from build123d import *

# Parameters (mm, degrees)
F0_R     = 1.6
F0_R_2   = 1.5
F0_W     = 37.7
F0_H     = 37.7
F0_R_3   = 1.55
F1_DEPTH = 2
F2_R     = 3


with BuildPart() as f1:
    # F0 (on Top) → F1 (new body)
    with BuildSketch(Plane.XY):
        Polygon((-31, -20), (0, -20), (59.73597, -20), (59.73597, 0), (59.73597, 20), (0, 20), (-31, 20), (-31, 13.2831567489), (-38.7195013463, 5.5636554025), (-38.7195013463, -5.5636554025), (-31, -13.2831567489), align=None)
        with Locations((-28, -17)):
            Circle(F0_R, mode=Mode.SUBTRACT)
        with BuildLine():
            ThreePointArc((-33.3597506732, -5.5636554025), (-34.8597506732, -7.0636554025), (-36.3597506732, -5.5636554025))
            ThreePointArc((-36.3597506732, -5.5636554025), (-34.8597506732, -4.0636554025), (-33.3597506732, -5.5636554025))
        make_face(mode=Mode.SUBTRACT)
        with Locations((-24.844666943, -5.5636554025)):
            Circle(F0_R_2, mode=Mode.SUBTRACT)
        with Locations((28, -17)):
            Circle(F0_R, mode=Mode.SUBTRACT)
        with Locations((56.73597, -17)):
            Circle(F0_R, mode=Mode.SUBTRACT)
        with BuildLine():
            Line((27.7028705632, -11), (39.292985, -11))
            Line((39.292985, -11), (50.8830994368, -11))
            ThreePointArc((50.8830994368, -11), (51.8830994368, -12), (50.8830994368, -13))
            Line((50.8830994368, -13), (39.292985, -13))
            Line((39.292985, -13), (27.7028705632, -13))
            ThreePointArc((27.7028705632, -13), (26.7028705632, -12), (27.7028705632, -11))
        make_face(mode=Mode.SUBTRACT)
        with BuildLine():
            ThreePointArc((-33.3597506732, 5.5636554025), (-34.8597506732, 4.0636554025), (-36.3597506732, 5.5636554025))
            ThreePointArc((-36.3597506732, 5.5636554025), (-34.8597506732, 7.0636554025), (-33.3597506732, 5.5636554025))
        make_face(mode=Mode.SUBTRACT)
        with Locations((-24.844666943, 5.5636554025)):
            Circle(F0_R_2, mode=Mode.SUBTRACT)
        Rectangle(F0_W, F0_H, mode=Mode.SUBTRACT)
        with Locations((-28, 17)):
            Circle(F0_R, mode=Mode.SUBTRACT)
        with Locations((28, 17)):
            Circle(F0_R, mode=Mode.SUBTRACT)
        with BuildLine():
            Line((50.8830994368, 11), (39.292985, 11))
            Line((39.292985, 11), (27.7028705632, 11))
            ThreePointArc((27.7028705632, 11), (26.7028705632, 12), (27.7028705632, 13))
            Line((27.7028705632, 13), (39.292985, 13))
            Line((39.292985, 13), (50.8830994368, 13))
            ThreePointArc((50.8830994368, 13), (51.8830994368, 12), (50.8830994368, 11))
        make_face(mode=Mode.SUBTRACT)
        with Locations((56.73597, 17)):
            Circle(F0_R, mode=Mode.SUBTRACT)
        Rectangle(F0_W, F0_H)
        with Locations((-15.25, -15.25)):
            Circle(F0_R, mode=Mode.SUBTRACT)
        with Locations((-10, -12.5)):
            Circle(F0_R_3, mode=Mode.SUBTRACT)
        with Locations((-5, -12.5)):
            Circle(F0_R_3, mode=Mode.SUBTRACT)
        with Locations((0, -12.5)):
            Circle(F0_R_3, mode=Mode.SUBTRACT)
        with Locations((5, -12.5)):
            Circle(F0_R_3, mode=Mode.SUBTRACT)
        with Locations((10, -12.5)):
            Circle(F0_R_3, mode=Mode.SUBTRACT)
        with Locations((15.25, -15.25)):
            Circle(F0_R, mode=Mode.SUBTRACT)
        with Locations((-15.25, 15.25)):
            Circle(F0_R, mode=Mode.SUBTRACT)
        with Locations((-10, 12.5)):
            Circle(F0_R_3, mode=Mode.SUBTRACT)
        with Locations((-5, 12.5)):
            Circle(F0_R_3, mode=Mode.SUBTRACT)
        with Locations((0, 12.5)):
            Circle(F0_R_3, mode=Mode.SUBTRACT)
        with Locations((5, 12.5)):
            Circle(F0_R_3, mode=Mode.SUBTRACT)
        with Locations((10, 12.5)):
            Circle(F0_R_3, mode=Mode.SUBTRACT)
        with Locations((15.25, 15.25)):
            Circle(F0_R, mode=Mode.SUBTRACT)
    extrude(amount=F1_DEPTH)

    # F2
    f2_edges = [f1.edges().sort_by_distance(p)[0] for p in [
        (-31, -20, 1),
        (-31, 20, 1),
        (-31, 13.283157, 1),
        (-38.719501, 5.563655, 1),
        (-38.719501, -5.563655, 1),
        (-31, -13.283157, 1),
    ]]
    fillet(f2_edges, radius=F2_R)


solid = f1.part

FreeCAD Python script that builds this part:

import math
import FreeCAD as App
import Part
import Sketcher

V = App.Vector
Q = App.Units.Quantity


def edges_at(feature, points):
    """Names of the edges that pass closest to the given points."""
    edges = feature.Shape.Edges
    near = lambda p: min(range(len(edges)), key=lambda i: edges[i].distToShape(Part.Vertex(*p))[0])
    return sorted({f"Edge{near(p) + 1}" for p in points})

doc = App.newDocument("Part")
body = doc.addObject("PartDesign::Body", "Body")

sketch1 = body.newObject("Sketcher::SketchObject", "Sketch")
sketch1.AttachmentSupport = (doc.getObject("XY_Plane"), [""])
sketch1.MapMode = "FlatFace"
sketch1.addGeometry(Part.LineSegment(V(-31, -20, 0), V(59.7, -20, 0)), False)
sketch1.addGeometry(Part.LineSegment(V(59.7, -20, 0), V(59.7, 20, 0)), False)
sketch1.addGeometry(Part.LineSegment(V(59.7, 20, 0), V(-31, 20, 0)), False)
sketch1.addGeometry(Part.LineSegment(V(-31, 20, 0), V(-31, 13.3, 0)), False)
sketch1.addGeometry(Part.LineSegment(V(-31, 13.3, 0), V(-38.7, 5.6, 0)), False)
sketch1.addGeometry(Part.LineSegment(V(-38.7, 5.6, 0), V(-38.7, -5.6, 0)), False)
sketch1.addGeometry(Part.LineSegment(V(-38.7, -5.6, 0), V(-31, -13.3, 0)), False)
sketch1.addGeometry(Part.LineSegment(V(-31, -13.3, 0), V(-31, -20, 0)), False)
sketch1.addGeometry(Part.Circle(V(-28, -17, 0), V(0, 0, 1), 1.6), False)
sketch1.addGeometry(Part.Circle(V(-15.2, -15.2, 0), V(0, 0, 1), 1.6), False)
sketch1.addGeometry(Part.Circle(V(-10, -12.5, 0), V(0, 0, 1), 1.6), False)
sketch1.addGeometry(Part.Circle(V(-5, -12.5, 0), V(0, 0, 1), 1.6), False)
sketch1.addGeometry(Part.Circle(V(0, -12.5, 0), V(0, 0, 1), 1.6), False)
sketch1.addGeometry(Part.Circle(V(5, -12.5, 0), V(0, 0, 1), 1.6), False)
sketch1.addGeometry(Part.Circle(V(10, -12.5, 0), V(0, 0, 1), 1.6), False)
sketch1.addGeometry(Part.Circle(V(-34.9, -5.6, 0), V(0, 0, 1), 1.5), False)
sketch1.addGeometry(Part.Circle(V(-24.8, -5.6, 0), V(0, 0, 1), 1.5), False)
sketch1.addGeometry(Part.Circle(V(15.2, -15.2, 0), V(0, 0, 1), 1.6), False)
sketch1.addGeometry(Part.Circle(V(28, -17, 0), V(0, 0, 1), 1.6), False)
sketch1.addGeometry(Part.Circle(V(56.7, -17, 0), V(0, 0, 1), 1.6), False)
sketch1.addGeometry(Part.ArcOfCircle(Part.Circle(V(27.7, -12, 0), V(0, 0, 1), 1), math.radians(90), math.radians(270)), False)
sketch1.addGeometry(Part.LineSegment(V(27.7, -11, 0), V(50.9, -11, 0)), False)
sketch1.addGeometry(Part.ArcOfCircle(Part.Circle(V(50.9, -12, 0), V(0, 0, 1), 1), math.radians(-90), math.radians(90)), False)
sketch1.addGeometry(Part.LineSegment(V(50.9, -13, 0), V(27.7, -13, 0)), False)
sketch1.addGeometry(Part.Circle(V(-34.9, 5.6, 0), V(0, 0, 1), 1.5), False)
sketch1.addGeometry(Part.Circle(V(-24.8, 5.6, 0), V(0, 0, 1), 1.5), False)
sketch1.addGeometry(Part.Circle(V(-28, 17, 0), V(0, 0, 1), 1.6), False)
sketch1.addGeometry(Part.Circle(V(-15.2, 15.2, 0), V(0, 0, 1), 1.6), False)
sketch1.addGeometry(Part.Circle(V(-10, 12.5, 0), V(0, 0, 1), 1.6), False)
sketch1.addGeometry(Part.Circle(V(-5, 12.5, 0), V(0, 0, 1), 1.6), False)
sketch1.addGeometry(Part.Circle(V(0, 12.5, 0), V(0, 0, 1), 1.6), False)
sketch1.addGeometry(Part.Circle(V(5, 12.5, 0), V(0, 0, 1), 1.6), False)
sketch1.addGeometry(Part.Circle(V(10, 12.5, 0), V(0, 0, 1), 1.6), False)
sketch1.addGeometry(Part.Circle(V(15.2, 15.2, 0), V(0, 0, 1), 1.6), False)
sketch1.addGeometry(Part.Circle(V(28, 17, 0), V(0, 0, 1), 1.6), False)
sketch1.addGeometry(Part.ArcOfCircle(Part.Circle(V(50.9, 12, 0), V(0, 0, 1), 1), math.radians(-90), math.radians(90)), False)
sketch1.addGeometry(Part.LineSegment(V(50.9, 11, 0), V(27.7, 11, 0)), False)
sketch1.addGeometry(Part.ArcOfCircle(Part.Circle(V(27.7, 12, 0), V(0, 0, 1), 1), math.radians(90), math.radians(270)), False)
sketch1.addGeometry(Part.LineSegment(V(27.7, 13, 0), V(50.9, 13, 0)), False)
sketch1.addGeometry(Part.Circle(V(56.7, 17, 0), V(0, 0, 1), 1.6), False)
sketch1.addConstraint(Sketcher.Constraint("Coincident", 0, 2, 1, 1))
sketch1.addConstraint(Sketcher.Constraint("Coincident", 1, 2, 2, 1))
sketch1.addConstraint(Sketcher.Constraint("Coincident", 2, 2, 3, 1))
sketch1.addConstraint(Sketcher.Constraint("Coincident", 3, 2, 4, 1))
sketch1.addConstraint(Sketcher.Constraint("Coincident", 4, 2, 5, 1))
sketch1.addConstraint(Sketcher.Constraint("Coincident", 5, 2, 6, 1))
sketch1.addConstraint(Sketcher.Constraint("Coincident", 6, 2, 7, 1))
sketch1.addConstraint(Sketcher.Constraint("Coincident", 7, 2, 0, 1))
sketch1.addConstraint(Sketcher.Constraint("Tangent", 20, 1, 21, 1))
sketch1.addConstraint(Sketcher.Constraint("Tangent", 21, 2, 22, 2))
sketch1.addConstraint(Sketcher.Constraint("Tangent", 22, 1, 23, 1))
sketch1.addConstraint(Sketcher.Constraint("Tangent", 23, 2, 20, 2))
sketch1.addConstraint(Sketcher.Constraint("Tangent", 35, 1, 36, 1))
sketch1.addConstraint(Sketcher.Constraint("Tangent", 36, 2, 37, 2))
sketch1.addConstraint(Sketcher.Constraint("Tangent", 37, 1, 38, 1))
sketch1.addConstraint(Sketcher.Constraint("Tangent", 38, 2, 35, 2))
sketch1.addConstraint(Sketcher.Constraint("Horizontal", 0))
sketch1.addConstraint(Sketcher.Constraint("Vertical", 1))
sketch1.addConstraint(Sketcher.Constraint("Horizontal", 2))
sketch1.addConstraint(Sketcher.Constraint("Vertical", 3))
sketch1.addConstraint(Sketcher.Constraint("Vertical", 5))
sketch1.addConstraint(Sketcher.Constraint("Vertical", 7))
sketch1.addConstraint(Sketcher.Constraint("Horizontal", 21))
sketch1.addConstraint(Sketcher.Constraint("Horizontal", 23))
sketch1.addConstraint(Sketcher.Constraint("Horizontal", 36))
sketch1.addConstraint(Sketcher.Constraint("Horizontal", 38))
sketch1.addConstraint(Sketcher.Constraint("Equal", 8, 9))
sketch1.addConstraint(Sketcher.Constraint("Equal", 10, 11))
sketch1.addConstraint(Sketcher.Constraint("Equal", 11, 12))
sketch1.addConstraint(Sketcher.Constraint("Equal", 12, 13))
sketch1.addConstraint(Sketcher.Constraint("Equal", 13, 14))
sketch1.addConstraint(Sketcher.Constraint("Equal", 15, 16))
sketch1.addConstraint(Sketcher.Constraint("Equal", 9, 17))
sketch1.addConstraint(Sketcher.Constraint("Equal", 17, 18))
sketch1.addConstraint(Sketcher.Constraint("Equal", 18, 19))
sketch1.addConstraint(Sketcher.Constraint("Equal", 16, 24))
sketch1.addConstraint(Sketcher.Constraint("Equal", 24, 25))
sketch1.addConstraint(Sketcher.Constraint("Equal", 19, 26))
sketch1.addConstraint(Sketcher.Constraint("Equal", 26, 27))
sketch1.addConstraint(Sketcher.Constraint("Equal", 14, 28))
sketch1.addConstraint(Sketcher.Constraint("Equal", 28, 29))
sketch1.addConstraint(Sketcher.Constraint("Equal", 29, 30))
sketch1.addConstraint(Sketcher.Constraint("Equal", 30, 31))
sketch1.addConstraint(Sketcher.Constraint("Equal", 31, 32))
sketch1.addConstraint(Sketcher.Constraint("Equal", 27, 33))
sketch1.addConstraint(Sketcher.Constraint("Equal", 33, 34))
sketch1.addConstraint(Sketcher.Constraint("Equal", 22, 35))
sketch1.addConstraint(Sketcher.Constraint("Equal", 34, 39))
sketch1.addConstraint(Sketcher.Constraint("Symmetric", 18, 3, 26, 3, -1, 1))
sketch1.addConstraint(Sketcher.Constraint("Symmetric", 17, 3, 27, 3, -1, 1))
sketch1.addConstraint(Sketcher.Constraint("Symmetric", 14, 3, 28, 3, -1, 1))
sketch1.addConstraint(Sketcher.Constraint("Symmetric", 13, 3, 29, 3, -1, 1))
sketch1.addConstraint(Sketcher.Constraint("Symmetric", 12, 3, 30, 3, -1, 1))
sketch1.addConstraint(Sketcher.Constraint("Symmetric", 11, 3, 31, 3, -1, 1))
sketch1.addConstraint(Sketcher.Constraint("Symmetric", 10, 3, 32, 3, -1, 1))
sketch1.addConstraint(Sketcher.Constraint("Symmetric", 9, 3, 33, 3, -1, 1))
sketch1.addConstraint(Sketcher.Constraint("Symmetric", 8, 3, 34, 3, -1, 1))
sketch1.addConstraint(Sketcher.Constraint("Symmetric", 11, 3, 13, 3, -2))
sketch1.addConstraint(Sketcher.Constraint("Symmetric", 10, 3, 14, 3, -2))
sketch1.addConstraint(Sketcher.Constraint("Symmetric", 9, 3, 17, 3, -2))
sketch1.addConstraint(Sketcher.Constraint("Symmetric", 8, 3, 18, 3, -2))
sketch1.addConstraint(Sketcher.Constraint("Symmetric", 15, 3, 24, 3, -1))
sketch1.addConstraint(Sketcher.Constraint("Symmetric", 16, 3, 25, 3, -1))
sketch1.addConstraint(Sketcher.Constraint("Symmetric", 22, 3, 35, 3, -1))
sketch1.addConstraint(Sketcher.Constraint("Symmetric", 19, 3, 39, 3, -1))
sketch1.addConstraint(Sketcher.Constraint("Symmetric", 3, 2, 6, 2, -1))
sketch1.addConstraint(Sketcher.Constraint("PointOnObject", 12, 3, -2))
sketch1.addConstraint(Sketcher.Constraint("Perpendicular", 4, 6))
sketch1.addConstraint(Sketcher.Constraint("Horizontal", 10, 3, 11, 3))
sketch1.addConstraint(Sketcher.Constraint("Horizontal", 11, 3, 12, 3))
sketch1.addConstraint(Sketcher.Constraint("Horizontal", 15, 3, 16, 3))
sketch1.addConstraint(Sketcher.Constraint("Horizontal", 18, 3, 19, 3))
sketch1.addConstraint(Sketcher.Constraint("Horizontal", 25, 3, 4, 2))
sketch1.addConstraint(Sketcher.Constraint("Horizontal", 16, 3, 5, 2))
sketch1.addConstraint(Sketcher.Constraint("Vertical", 20, 3, 37, 3))
sketch1.addConstraint(Sketcher.Constraint("Equal", 3, 7))
sketch1.addConstraint(Sketcher.Constraint("Diameter", 15, Q("3 mm")))
sketch1.addConstraint(Sketcher.Constraint("Radius", 20, Q("1 mm")))
sketch1.addConstraint(Sketcher.Constraint("Diameter", 8, Q("3.2 mm")))
sketch1.addConstraint(Sketcher.Constraint("Diameter", 10, Q("3.1 mm")))
sketch1.addConstraint(Sketcher.Constraint("DistanceY", 1, 1, 1, 2, Q("40 mm")))
sketch1.addConstraint(Sketcher.Constraint("DistanceX", 8, 3, -1, 1, Q("28 mm")))
sketch1.addConstraint(Sketcher.Constraint("DistanceY", 8, 3, -1, 1, Q("17 mm")))
sketch1.addConstraint(Sketcher.Constraint("DistanceX", 10, 3, -1, 1, Q("10 mm")))
sketch1.addConstraint(Sketcher.Constraint("DistanceX", 11, 3, -1, 1, Q("5 mm")))
sketch1.addConstraint(Sketcher.Constraint("DistanceY", 20, 3, -1, 1, Q("12 mm")))
sketch1.addConstraint(Sketcher.Constraint("DistanceX", 2, 2, -1, 1, Q("31 mm")))
sketch1.addConstraint(Sketcher.Constraint("DistanceY", 10, 3, 28, 3, Q("25 mm")))
sketch1.addConstraint(Sketcher.Constraint("DistanceX", 19, 3, 0, 2, Q("3 mm")))
sketch1.addConstraint(Sketcher.Constraint("DistanceX", 9, 3, -1, 1, Q("15.25 mm")))
sketch1.addConstraint(Sketcher.Constraint("DistanceY", 9, 3, -1, 1, Q("15.25 mm")))
sketch1.addConstraint(Sketcher.Constraint("DistanceX", 0, 1, 0, 2, Q("90.73597 mm")))
sketch1.addConstraint(Sketcher.Constraint("DistanceX", 21, 1, 21, 2, Q("23.180229 mm")))
sketch1.addConstraint(Sketcher.Constraint("DistanceY", 5, 2, 5, 1, Q("11.127311 mm")))
sketch1.addConstraint(Sketcher.Constraint("DistanceX", -1, 1, 22, 3, Q("50.883099 mm")))
sketch1.addConstraint(Sketcher.Constraint("DistanceX", 4, 2, -1, 1, Q("38.719501 mm")))
sketch1.addConstraint(Sketcher.Constraint("DistanceX", 15, 3, -1, 1, Q("34.859751 mm")))
sketch1.addConstraint(Sketcher.Constraint("DistanceX", 16, 3, -1, 1, Q("24.844667 mm")))
pad1 = body.newObject("PartDesign::Pad", "Pad")
pad1.Profile = sketch1
pad1.Length = 2
doc.recompute()

fillet = body.newObject("PartDesign::Fillet", "Fillet")
fillet.Base = (pad1, edges_at(pad1, [
    (-31, -20, 1),
    (-31, 20, 1),
    (-31, 13.283, 1),
    (-38.72, 5.564, 1),
    (-38.72, -5.564, 1),
    (-31, -13.283, 1),
]))
fillet.Radius = 3

doc.recompute()
